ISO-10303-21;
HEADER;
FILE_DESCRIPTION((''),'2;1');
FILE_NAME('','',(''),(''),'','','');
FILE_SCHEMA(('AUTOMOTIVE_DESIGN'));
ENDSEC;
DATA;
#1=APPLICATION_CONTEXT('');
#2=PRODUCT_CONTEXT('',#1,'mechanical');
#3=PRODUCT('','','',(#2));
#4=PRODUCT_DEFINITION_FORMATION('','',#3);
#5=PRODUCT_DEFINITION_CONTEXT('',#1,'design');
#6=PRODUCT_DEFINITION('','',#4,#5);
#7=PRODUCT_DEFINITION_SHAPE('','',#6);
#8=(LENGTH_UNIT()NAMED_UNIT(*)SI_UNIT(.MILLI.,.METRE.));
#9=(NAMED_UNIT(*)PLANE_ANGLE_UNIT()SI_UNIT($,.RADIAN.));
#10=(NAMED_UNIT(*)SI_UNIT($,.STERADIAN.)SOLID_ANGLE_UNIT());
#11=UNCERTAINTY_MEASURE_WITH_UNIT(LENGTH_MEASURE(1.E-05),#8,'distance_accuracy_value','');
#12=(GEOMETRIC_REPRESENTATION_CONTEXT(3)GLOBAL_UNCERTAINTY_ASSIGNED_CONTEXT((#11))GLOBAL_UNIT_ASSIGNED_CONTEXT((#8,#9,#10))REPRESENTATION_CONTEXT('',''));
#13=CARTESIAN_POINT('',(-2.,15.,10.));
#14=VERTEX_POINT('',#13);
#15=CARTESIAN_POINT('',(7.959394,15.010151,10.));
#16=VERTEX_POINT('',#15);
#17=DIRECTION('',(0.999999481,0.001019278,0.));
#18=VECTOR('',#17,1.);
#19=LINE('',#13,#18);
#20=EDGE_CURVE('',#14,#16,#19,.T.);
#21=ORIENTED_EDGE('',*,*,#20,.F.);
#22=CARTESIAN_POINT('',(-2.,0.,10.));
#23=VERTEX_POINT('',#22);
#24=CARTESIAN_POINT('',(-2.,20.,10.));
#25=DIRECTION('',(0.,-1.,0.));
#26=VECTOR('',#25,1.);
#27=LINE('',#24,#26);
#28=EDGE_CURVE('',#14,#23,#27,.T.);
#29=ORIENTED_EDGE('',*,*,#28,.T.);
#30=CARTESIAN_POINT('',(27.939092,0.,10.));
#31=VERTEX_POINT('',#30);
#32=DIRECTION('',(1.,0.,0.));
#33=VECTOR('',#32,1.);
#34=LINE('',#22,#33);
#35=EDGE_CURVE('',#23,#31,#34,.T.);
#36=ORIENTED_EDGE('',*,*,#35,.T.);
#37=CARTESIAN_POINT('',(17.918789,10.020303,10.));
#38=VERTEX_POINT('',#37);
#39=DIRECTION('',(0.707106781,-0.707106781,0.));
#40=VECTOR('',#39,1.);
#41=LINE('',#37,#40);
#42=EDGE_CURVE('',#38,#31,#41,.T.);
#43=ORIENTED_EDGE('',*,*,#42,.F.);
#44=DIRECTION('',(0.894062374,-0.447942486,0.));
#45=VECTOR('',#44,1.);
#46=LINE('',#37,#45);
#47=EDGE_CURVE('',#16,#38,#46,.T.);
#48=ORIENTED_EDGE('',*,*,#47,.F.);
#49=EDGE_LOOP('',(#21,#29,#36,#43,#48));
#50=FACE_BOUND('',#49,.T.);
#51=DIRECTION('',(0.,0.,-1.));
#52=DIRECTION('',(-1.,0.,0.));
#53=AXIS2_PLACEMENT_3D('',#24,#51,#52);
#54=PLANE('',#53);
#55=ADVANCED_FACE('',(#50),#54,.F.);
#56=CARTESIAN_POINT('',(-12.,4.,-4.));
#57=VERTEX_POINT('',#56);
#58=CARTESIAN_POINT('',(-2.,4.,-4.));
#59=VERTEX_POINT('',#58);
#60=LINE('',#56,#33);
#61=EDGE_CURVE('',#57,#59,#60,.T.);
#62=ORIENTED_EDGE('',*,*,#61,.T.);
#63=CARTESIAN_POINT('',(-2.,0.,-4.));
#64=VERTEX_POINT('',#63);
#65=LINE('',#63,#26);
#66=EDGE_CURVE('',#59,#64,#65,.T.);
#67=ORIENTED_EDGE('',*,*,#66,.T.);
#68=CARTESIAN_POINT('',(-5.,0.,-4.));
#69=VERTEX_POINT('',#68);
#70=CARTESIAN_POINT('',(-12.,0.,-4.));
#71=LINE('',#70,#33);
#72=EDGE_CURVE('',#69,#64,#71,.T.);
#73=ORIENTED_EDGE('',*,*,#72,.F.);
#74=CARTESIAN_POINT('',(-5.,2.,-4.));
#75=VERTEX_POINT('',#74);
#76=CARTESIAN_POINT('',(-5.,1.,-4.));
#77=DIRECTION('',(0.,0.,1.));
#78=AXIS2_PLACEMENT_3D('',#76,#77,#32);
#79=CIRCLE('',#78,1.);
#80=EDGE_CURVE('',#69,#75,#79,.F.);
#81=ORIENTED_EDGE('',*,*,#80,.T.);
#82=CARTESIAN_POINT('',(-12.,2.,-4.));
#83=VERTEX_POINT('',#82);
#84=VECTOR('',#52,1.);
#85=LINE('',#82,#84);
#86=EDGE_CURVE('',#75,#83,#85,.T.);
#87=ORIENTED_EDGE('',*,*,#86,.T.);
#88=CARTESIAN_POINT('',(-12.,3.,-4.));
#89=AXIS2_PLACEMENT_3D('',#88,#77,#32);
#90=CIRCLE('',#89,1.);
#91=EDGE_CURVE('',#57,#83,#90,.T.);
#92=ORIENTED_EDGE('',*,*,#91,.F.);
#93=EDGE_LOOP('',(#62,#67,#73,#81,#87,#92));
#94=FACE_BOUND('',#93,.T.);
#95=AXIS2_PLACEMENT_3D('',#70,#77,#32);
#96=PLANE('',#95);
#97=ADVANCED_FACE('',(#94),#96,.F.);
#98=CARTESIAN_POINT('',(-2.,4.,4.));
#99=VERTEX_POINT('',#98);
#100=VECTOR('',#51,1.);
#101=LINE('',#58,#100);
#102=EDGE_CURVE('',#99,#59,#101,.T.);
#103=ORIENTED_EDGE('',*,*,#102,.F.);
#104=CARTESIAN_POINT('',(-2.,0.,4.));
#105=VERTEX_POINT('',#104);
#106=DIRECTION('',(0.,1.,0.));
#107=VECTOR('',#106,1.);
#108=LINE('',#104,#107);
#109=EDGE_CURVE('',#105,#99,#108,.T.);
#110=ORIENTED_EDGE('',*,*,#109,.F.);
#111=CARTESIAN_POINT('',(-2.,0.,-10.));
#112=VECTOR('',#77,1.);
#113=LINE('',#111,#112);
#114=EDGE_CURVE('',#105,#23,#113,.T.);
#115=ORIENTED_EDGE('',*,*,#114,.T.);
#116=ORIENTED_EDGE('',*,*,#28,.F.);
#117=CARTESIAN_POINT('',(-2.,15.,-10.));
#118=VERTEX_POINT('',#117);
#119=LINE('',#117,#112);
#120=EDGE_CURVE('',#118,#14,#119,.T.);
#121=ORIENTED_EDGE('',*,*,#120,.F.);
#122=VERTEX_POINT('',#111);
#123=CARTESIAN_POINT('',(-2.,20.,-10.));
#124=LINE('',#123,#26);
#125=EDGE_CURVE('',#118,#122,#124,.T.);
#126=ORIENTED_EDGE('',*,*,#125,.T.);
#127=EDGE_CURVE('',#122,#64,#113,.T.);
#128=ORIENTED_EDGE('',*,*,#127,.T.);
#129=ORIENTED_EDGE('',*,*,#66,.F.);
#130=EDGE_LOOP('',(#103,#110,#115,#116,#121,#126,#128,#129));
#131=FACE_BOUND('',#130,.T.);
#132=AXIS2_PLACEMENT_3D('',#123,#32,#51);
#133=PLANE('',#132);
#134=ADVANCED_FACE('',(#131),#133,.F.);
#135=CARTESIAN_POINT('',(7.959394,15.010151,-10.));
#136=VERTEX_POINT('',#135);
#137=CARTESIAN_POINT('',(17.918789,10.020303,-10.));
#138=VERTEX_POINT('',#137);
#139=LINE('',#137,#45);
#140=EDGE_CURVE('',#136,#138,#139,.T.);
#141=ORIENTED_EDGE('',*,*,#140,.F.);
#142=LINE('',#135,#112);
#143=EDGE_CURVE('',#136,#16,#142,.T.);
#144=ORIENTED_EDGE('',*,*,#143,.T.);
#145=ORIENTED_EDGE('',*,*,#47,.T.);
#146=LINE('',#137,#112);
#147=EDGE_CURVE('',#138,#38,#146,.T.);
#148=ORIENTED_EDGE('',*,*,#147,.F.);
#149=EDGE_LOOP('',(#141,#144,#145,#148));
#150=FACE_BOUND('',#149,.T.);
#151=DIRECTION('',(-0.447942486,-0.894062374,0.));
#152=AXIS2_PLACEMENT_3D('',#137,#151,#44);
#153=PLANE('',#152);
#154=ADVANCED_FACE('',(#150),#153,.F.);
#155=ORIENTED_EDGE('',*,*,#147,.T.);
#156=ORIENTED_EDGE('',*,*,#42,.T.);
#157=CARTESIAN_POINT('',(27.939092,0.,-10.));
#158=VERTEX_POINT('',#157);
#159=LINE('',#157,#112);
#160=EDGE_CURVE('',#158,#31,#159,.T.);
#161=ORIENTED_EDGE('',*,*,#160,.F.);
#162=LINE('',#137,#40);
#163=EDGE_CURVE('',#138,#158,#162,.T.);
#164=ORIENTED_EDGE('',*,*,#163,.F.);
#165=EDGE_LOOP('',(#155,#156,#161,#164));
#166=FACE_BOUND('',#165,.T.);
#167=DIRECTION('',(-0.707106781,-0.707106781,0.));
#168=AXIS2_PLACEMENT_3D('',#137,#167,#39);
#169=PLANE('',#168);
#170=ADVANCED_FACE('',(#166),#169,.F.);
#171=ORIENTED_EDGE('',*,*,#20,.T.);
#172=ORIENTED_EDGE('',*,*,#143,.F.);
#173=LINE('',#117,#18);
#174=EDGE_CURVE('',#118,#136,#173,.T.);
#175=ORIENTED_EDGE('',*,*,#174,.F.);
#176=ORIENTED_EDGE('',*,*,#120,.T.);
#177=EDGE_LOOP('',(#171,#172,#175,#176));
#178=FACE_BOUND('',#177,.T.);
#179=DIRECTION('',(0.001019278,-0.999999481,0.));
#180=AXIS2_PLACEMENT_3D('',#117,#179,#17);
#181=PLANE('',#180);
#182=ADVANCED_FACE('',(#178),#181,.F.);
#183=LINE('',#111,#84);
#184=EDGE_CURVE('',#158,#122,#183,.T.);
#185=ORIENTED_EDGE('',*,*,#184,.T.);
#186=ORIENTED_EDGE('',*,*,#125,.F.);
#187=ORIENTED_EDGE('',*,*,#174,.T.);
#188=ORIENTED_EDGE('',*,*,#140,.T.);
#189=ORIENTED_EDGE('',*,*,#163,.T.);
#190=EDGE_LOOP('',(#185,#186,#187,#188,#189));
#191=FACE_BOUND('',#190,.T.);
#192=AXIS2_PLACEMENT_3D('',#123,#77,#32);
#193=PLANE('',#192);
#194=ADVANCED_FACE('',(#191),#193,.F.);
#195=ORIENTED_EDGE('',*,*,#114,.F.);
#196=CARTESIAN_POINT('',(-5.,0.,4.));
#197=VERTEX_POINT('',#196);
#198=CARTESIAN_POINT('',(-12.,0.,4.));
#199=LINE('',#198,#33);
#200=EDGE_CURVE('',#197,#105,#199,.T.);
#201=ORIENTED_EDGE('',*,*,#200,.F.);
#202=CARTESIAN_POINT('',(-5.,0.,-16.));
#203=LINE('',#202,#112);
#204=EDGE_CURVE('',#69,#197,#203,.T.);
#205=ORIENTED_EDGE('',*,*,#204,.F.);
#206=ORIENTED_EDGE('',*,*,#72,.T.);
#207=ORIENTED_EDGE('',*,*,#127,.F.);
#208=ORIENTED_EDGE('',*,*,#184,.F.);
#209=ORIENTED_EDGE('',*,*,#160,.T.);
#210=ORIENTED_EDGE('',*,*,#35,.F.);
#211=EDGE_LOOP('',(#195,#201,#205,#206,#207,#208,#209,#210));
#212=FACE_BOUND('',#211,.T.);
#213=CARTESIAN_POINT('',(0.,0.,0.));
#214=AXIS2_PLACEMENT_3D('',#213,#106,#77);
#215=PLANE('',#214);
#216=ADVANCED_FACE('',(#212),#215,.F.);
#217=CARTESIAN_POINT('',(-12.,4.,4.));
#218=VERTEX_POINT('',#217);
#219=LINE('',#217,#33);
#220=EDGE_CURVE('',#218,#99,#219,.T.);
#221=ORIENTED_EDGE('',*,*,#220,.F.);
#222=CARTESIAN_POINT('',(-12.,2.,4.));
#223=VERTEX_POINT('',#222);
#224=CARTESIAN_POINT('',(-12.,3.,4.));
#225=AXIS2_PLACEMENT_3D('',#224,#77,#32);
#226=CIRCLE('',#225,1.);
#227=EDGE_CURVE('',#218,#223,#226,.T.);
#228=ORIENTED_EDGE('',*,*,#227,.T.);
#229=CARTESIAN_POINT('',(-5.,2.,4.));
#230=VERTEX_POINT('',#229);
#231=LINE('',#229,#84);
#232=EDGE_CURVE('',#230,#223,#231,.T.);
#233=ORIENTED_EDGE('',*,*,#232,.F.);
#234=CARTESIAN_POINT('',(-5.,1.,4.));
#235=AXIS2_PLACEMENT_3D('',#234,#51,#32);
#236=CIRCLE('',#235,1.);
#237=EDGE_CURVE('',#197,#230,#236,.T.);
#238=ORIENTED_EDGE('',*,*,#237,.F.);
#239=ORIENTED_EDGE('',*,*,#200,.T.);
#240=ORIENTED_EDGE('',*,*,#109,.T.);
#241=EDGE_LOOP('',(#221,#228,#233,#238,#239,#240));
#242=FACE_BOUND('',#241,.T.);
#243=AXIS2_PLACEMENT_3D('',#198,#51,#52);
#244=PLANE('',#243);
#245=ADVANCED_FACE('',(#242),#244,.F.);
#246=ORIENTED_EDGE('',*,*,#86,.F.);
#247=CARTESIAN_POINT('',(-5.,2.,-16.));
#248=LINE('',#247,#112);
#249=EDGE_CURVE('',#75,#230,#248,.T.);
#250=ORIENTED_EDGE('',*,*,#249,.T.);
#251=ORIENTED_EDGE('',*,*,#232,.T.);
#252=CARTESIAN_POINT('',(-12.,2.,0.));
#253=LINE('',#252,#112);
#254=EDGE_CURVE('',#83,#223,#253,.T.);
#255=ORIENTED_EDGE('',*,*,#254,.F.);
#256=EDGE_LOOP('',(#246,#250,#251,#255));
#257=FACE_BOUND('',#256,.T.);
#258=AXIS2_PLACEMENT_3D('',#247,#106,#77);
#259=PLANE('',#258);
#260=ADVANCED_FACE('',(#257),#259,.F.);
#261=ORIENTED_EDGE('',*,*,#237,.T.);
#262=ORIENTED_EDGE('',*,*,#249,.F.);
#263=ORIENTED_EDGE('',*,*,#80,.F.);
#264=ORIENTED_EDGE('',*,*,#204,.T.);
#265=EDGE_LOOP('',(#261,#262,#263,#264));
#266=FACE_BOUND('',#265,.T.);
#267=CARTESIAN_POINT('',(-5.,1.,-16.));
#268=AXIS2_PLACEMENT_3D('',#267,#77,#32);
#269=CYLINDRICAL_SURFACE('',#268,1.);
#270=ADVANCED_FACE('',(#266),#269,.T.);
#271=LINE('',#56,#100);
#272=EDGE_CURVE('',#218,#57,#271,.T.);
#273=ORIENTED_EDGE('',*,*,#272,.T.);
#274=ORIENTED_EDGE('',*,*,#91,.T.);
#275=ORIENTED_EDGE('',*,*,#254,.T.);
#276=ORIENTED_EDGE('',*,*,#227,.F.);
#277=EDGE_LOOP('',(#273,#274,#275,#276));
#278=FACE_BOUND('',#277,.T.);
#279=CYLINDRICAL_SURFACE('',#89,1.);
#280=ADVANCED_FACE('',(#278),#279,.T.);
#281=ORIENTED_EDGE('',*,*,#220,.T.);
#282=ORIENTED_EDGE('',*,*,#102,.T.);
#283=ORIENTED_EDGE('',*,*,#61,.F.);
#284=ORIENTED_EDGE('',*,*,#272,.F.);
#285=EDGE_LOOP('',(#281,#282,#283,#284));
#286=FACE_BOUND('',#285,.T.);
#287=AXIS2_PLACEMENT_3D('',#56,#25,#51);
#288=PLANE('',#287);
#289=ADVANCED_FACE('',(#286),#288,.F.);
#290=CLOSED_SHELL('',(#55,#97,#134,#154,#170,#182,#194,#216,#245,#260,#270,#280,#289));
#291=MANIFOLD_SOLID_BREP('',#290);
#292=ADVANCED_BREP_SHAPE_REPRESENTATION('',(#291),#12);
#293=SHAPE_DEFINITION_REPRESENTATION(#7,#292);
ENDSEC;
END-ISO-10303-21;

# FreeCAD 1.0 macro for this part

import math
import FreeCAD as App
import Part
import Sketcher
from FreeCAD import Vector
Q = App.Units.Quantity


def add_polygon(sketch, points):
    """Adds a closed chain of lines whose ends are joined by coincident constraints."""
    first, n = sketch.GeometryCount, len(points)
    for a, b in zip(points, points[1:] + points[:1]):
        sketch.addGeometry(Part.LineSegment(App.Vector(*a, 0), App.Vector(*b, 0)), False)
    for i in range(n):
        sketch.addConstraint(Sketcher.Constraint("Coincident", first + i, 2, first + (i + 1) % n, 1))

doc = App.newDocument("Part")
body = doc.addObject("PartDesign::Body", "Body")

sketch1 = doc.addObject("Sketcher::SketchObject", "Sketch")
body.addObject(sketch1)
sketch1.AttachmentSupport = (doc.XZ_Plane, [""])
sketch1.MapMode = "FlatFace"
add_polygon(sketch1, [(-2, -10), (-2, 10), (38, 10), (38, -10)])
sketch1.addConstraint(Sketcher.Constraint("Vertical", 0))
sketch1.addConstraint(Sketcher.Constraint("Horizontal", 1))
sketch1.addConstraint(Sketcher.Constraint("Vertical", 2))
sketch1.addConstraint(Sketcher.Constraint("Horizontal", 3))
sketch1.addConstraint(Sketcher.Constraint("DistanceX", 1, 1, 1, 2, 40.0))
sketch1.addConstraint(Sketcher.Constraint("DistanceY", 0, 1, 0, 2, 20.0))
sketch1.addConstraint(Sketcher.Constraint("DistanceX", 0, 2, -1, 1, 2.0))
sketch1.addConstraint(Sketcher.Constraint("DistanceY", -1, 1, 0, 2, 10.0))
pad1 = doc.addObject("PartDesign::Pad", "Pad")
body.addObject(pad1)
pad1.Profile = sketch1
pad1.Length = 20
pad1.Reversed = True

sketch2 = doc.addObject("Sketcher::SketchObject", "Sketch001")
body.addObject(sketch2)
sketch2.AttachmentSupport = (doc.YZ_Plane, [""])
sketch2.MapMode = "FlatFace"
sketch2.AttachmentOffset = App.Placement(Vector(0, 0, -2), App.Rotation())
add_polygon(sketch2, [(4, -4), (0, -4), (0, 4), (4, 4)])
sketch2.addConstraint(Sketcher.Constraint("Horizontal", 0))
sketch2.addConstraint(Sketcher.Constraint("Vertical", 1))
sketch2.addConstraint(Sketcher.Constraint("Horizontal", 2))
sketch2.addConstraint(Sketcher.Constraint("Vertical", 3))
sketch2.addConstraint(Sketcher.Constraint("Symmetric", 0, 2, 1, 2, -1, 1))
sketch2.addConstraint(Sketcher.Constraint("DistanceX", 0, 2, 0, 1, 4.0))
sketch2.addConstraint(Sketcher.Constraint("DistanceY", 1, 1, 1, 2, 8.0))
pad2 = doc.addObject("PartDesign::Pad", "Pad001")
body.addObject(pad2)
pad2.Profile = sketch2
pad2.Length = 10
pad2.Reversed = True

sketch3 = doc.addObject("Sketcher::SketchObject", "Sketch002")
body.addObject(sketch3)
sketch3.AttachmentSupport = (doc.XY_Plane, [""])
sketch3.MapMode = "FlatFace"
sketch3.AttachmentOffset = App.Placement(Vector(0, 0, 4), App.Rotation())
sketch3.addGeometry(Part.LineSegment(Vector(-5, 2, 0), Vector(-18.474771, 2, 0)), False)
sketch3.addGeometry(Part.LineSegment(Vector(-18.474771, 2, 0), Vector(-18.474771, 0, 0)), False)
sketch3.addGeometry(Part.LineSegment(Vector(-18.474771, 0, 0), Vector(-5, 0, 0)), False)
sketch3.addGeometry(Part.ArcOfCircle(Part.Circle(Vector(-5, 1, 0), Vector(0, 0, 1), 1), math.radians(90), math.radians(270)), False)
sketch3.addConstraint(Sketcher.Constraint("Coincident", 0, 2, 1, 1))
sketch3.addConstraint(Sketcher.Constraint("Coincident", 1, 2, 2, 1))
sketch3.addConstraint(Sketcher.Constraint("Tangent", 2, 2, 3, 2))
sketch3.addConstraint(Sketcher.Constraint("Tangent", 3, 1, 0, 1))
sketch3.addConstraint(Sketcher.Constraint("Horizontal", 0))
sketch3.addConstraint(Sketcher.Constraint("Vertical", 1))
sketch3.addConstraint(Sketcher.Constraint("Horizontal", 2))
sketch3.addConstraint(Sketcher.Constraint("PointOnObject", 1, 2, -1))
sketch3.addConstraint(Sketcher.Constraint("Radius", 3, 1.0))
sketch3.addConstraint(Sketcher.Constraint("DistanceX", 3, 3, -1, 1, 5.0))
sketch3.addConstraint(Sketcher.Constraint("DistanceX", 0, 2, 0, 1, 13.474771))
pocket1 = doc.addObject("PartDesign::Pocket", "Pocket")
body.addObject(pocket1)
pocket1.Profile = sketch3
pocket1.Length = 20

sketch4 = doc.addObject("Sketcher::SketchObject", "Sketch003")
body.addObject(sketch4)
sketch4.AttachmentSupport = (doc.XY_Plane, [""])
sketch4.MapMode = "FlatFace"
sketch4.AttachmentOffset = App.Placement(Vector(0, 0, 4), App.Rotation())
sketch4.addGeometry(Part.Circle(Vector(-12, 3, 0), Vector(0, 0, 1), 1), False)
sketch4.addConstraint(Sketcher.Constraint("Diameter", 0, 2.0))
sketch4.addConstraint(Sketcher.Constraint("DistanceX", 0, 3, -1, 1, 12.0))
sketch4.addConstraint(Sketcher.Constraint("DistanceY", -1, 1, 0, 3, 3.0))
pad3 = doc.addObject("PartDesign::Pad", "Pad002")
body.addObject(pad3)
pad3.Profile = sketch4
pad3.Length = 8
pad3.Reversed = True

sketch5 = doc.addObject("Sketcher::SketchObject", "Sketch004")
body.addObject(sketch5)
sketch5.AttachmentSupport = (doc.XY_Plane, [""])
sketch5.MapMode = "FlatFace"
sketch5.AttachmentOffset = App.Placement(Vector(0, 0, 10), App.Rotation())
add_polygon(sketch5, [(40.736847, 20.947387), (-2, 20), (-2, 15), (7.959394, 15.010151), (17.918789, 10.020303), (27.939092, 0), (43.275764, 0)])
sketch5.addConstraint(Sketcher.Constraint("Vertical", 1))
sketch5.addConstraint(Sketcher.Constraint("Horizontal", 5))
sketch5.addConstraint(Sketcher.Constraint("PointOnObject", 4, 2, -1))
sketch5.addConstraint(Sketcher.Constraint("DistanceY", 1, 2, 1, 1, 5.0))
sketch5.addConstraint(Sketcher.Constraint("Angle", 4, Q("-45 deg")))
sketch5.addConstraint(Sketcher.Constraint("DistanceX", 0, 2, -1, 1, 2.0))
sketch5.addConstraint(Sketcher.Constraint("DistanceY", -1, 1, 0, 2, 20.0))
sketch5.addConstraint(Sketcher.Constraint("Distance", 2, 9.9594))
sketch5.addConstraint(Sketcher.Constraint("Distance", 4, 14.170848))
sketch5.addConstraint(Sketcher.Constraint("Distance", 6, 21.10069))
sketch5.addConstraint(Sketcher.Constraint("DistanceX", 5, 1, 5, 2, 15.336673))
sketch5.addConstraint(Sketcher.Constraint("DistanceY", -1, 1, 2, 2, 15.010151))
sketch5.addConstraint(Sketcher.Constraint("DistanceX", -1, 1, 3, 2, 17.918789))
sketch5.addConstraint(Sketcher.Constraint("DistanceX", 3, 2, 6, 2, 22.818058))
pocket2 = doc.addObject("PartDesign::Pocket", "Pocket001")
body.addObject(pocket2)
pocket2.Profile = sketch5
pocket2.Length = 20

doc.recompute()
